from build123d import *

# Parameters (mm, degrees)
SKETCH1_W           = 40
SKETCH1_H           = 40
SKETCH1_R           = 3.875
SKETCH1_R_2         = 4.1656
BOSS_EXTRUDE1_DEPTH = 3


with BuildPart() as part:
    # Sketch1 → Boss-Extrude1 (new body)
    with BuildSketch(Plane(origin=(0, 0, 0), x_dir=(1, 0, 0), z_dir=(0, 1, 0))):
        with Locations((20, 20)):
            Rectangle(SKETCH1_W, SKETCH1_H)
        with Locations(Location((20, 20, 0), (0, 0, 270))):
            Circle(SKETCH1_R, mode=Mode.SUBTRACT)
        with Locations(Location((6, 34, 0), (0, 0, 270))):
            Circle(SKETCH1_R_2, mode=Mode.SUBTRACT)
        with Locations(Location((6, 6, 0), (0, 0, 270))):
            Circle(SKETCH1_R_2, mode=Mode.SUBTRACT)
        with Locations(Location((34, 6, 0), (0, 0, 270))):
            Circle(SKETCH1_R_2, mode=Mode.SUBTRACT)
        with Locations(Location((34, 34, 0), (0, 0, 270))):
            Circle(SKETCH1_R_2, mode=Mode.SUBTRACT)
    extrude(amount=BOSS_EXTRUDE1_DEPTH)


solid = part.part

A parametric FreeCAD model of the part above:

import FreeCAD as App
import Part
import Sketcher


def add_polygon(sketch, points):
    """Adds a closed chain of lines whose ends are joined by coincident constraints."""
    first, n = sketch.GeometryCount, len(points)
    for a, b in zip(points, points[1:] + points[:1]):
        sketch.addGeometry(Part.LineSegment(App.Vector(*a, 0), App.Vector(*b, 0)), False)
    for i in range(n):
        sketch.addConstraint(Sketcher.Constraint("Coincident", first + i, 2, first + (i + 1) % n, 1))

doc = App.newDocument("Part")
params = doc.addObject("Spreadsheet::Sheet", "Params")
for row, (alias, value) in enumerate([
    ("sketch1_diameter", "7.75 mm"),
    ("sketch1_width", "40 mm"),
    ("pad1_length", "3 mm"),
], start=1):
    params.set(f"A{row}", alias)
    params.set(f"B{row}", "=" + value)
    params.setAlias(f"B{row}", alias)

body = doc.addObject("PartDesign::Body", "Body")

sketch1 = body.newObject("Sketcher::SketchObject", "Sketch")
sketch1.AttachmentSupport = (doc.getObject("XZ_Plane"), [""])
sketch1.MapMode = "FlatFace"
add_polygon(sketch1, [(0, -40), (0, 0), (40, 0), (40, -40)])
sketch1.addGeometry(Part.Circle(App.Vector(6, -6, 0), App.Vector(0, 0, 1), 4.2), False)
sketch1.addGeometry(Part.Circle(App.Vector(34, -6, 0), App.Vector(0, 0, 1), 4.2), False)
sketch1.addGeometry(Part.Circle(App.Vector(6, -34, 0), App.Vector(0, 0, 1), 4.2), False)
sketch1.addGeometry(Part.Circle(App.Vector(20, -20, 0), App.Vector(0, 0, 1), 3.9), False)
sketch1.addGeometry(Part.Circle(App.Vector(34, -34, 0), App.Vector(0, 0, 1), 4.2), False)
sketch1.addConstraint([
    Sketcher.Constraint("Vertical", 0),
    Sketcher.Constraint("Horizontal", 1),
    Sketcher.Constraint("Vertical", 2),
    Sketcher.Constraint("Horizontal", 3),
    Sketcher.Constraint("Coincident", 0, 2, -1, 1),
    Sketcher.Constraint("Equal", 4, 5),
    Sketcher.Constraint("Equal", 5, 6),
    Sketcher.Constraint("Equal", 6, 8),
    Sketcher.Constraint("Horizontal", 4, 3, 5, 3),
    Sketcher.Constraint("Horizontal", 6, 3, 8, 3),
    Sketcher.Constraint("Vertical", 4, 3, 6, 3),
    Sketcher.Constraint("Vertical", 5, 3, 8, 3),
    Sketcher.Constraint("Equal", 3, 0),
    Sketcher.Constraint("Diameter", 7, 7.75),
    Sketcher.Constraint("DistanceX", 1, 1, 1, 2, 40.0),
    Sketcher.Constraint("DistanceX", -1, 1, 4, 3, 6.0),
    Sketcher.Constraint("DistanceY", 4, 3, -1, 1, 6.0),
    Sketcher.Constraint("DistanceX", -1, 1, 5, 3, 34.0),
    Sketcher.Constraint("DistanceY", 6, 3, -1, 1, 34.0),
    Sketcher.Constraint("DistanceX", -1, 1, 7, 3, 20.0),
    Sketcher.Constraint("DistanceY", 7, 3, -1, 1, 20.0),
    Sketcher.Constraint("Diameter", 4, 8.3312),
])
sketch1.setExpression("Constraints[17]", "Params.sketch1_diameter")
sketch1.setExpression("Constraints[18]", "Params.sketch1_width")
pad1 = body.newObject("PartDesign::Pad", "Pad")
pad1.Profile = sketch1
pad1.setExpression("Length", "Params.pad1_length")
pad1.Reversed = True

doc.recompute()
